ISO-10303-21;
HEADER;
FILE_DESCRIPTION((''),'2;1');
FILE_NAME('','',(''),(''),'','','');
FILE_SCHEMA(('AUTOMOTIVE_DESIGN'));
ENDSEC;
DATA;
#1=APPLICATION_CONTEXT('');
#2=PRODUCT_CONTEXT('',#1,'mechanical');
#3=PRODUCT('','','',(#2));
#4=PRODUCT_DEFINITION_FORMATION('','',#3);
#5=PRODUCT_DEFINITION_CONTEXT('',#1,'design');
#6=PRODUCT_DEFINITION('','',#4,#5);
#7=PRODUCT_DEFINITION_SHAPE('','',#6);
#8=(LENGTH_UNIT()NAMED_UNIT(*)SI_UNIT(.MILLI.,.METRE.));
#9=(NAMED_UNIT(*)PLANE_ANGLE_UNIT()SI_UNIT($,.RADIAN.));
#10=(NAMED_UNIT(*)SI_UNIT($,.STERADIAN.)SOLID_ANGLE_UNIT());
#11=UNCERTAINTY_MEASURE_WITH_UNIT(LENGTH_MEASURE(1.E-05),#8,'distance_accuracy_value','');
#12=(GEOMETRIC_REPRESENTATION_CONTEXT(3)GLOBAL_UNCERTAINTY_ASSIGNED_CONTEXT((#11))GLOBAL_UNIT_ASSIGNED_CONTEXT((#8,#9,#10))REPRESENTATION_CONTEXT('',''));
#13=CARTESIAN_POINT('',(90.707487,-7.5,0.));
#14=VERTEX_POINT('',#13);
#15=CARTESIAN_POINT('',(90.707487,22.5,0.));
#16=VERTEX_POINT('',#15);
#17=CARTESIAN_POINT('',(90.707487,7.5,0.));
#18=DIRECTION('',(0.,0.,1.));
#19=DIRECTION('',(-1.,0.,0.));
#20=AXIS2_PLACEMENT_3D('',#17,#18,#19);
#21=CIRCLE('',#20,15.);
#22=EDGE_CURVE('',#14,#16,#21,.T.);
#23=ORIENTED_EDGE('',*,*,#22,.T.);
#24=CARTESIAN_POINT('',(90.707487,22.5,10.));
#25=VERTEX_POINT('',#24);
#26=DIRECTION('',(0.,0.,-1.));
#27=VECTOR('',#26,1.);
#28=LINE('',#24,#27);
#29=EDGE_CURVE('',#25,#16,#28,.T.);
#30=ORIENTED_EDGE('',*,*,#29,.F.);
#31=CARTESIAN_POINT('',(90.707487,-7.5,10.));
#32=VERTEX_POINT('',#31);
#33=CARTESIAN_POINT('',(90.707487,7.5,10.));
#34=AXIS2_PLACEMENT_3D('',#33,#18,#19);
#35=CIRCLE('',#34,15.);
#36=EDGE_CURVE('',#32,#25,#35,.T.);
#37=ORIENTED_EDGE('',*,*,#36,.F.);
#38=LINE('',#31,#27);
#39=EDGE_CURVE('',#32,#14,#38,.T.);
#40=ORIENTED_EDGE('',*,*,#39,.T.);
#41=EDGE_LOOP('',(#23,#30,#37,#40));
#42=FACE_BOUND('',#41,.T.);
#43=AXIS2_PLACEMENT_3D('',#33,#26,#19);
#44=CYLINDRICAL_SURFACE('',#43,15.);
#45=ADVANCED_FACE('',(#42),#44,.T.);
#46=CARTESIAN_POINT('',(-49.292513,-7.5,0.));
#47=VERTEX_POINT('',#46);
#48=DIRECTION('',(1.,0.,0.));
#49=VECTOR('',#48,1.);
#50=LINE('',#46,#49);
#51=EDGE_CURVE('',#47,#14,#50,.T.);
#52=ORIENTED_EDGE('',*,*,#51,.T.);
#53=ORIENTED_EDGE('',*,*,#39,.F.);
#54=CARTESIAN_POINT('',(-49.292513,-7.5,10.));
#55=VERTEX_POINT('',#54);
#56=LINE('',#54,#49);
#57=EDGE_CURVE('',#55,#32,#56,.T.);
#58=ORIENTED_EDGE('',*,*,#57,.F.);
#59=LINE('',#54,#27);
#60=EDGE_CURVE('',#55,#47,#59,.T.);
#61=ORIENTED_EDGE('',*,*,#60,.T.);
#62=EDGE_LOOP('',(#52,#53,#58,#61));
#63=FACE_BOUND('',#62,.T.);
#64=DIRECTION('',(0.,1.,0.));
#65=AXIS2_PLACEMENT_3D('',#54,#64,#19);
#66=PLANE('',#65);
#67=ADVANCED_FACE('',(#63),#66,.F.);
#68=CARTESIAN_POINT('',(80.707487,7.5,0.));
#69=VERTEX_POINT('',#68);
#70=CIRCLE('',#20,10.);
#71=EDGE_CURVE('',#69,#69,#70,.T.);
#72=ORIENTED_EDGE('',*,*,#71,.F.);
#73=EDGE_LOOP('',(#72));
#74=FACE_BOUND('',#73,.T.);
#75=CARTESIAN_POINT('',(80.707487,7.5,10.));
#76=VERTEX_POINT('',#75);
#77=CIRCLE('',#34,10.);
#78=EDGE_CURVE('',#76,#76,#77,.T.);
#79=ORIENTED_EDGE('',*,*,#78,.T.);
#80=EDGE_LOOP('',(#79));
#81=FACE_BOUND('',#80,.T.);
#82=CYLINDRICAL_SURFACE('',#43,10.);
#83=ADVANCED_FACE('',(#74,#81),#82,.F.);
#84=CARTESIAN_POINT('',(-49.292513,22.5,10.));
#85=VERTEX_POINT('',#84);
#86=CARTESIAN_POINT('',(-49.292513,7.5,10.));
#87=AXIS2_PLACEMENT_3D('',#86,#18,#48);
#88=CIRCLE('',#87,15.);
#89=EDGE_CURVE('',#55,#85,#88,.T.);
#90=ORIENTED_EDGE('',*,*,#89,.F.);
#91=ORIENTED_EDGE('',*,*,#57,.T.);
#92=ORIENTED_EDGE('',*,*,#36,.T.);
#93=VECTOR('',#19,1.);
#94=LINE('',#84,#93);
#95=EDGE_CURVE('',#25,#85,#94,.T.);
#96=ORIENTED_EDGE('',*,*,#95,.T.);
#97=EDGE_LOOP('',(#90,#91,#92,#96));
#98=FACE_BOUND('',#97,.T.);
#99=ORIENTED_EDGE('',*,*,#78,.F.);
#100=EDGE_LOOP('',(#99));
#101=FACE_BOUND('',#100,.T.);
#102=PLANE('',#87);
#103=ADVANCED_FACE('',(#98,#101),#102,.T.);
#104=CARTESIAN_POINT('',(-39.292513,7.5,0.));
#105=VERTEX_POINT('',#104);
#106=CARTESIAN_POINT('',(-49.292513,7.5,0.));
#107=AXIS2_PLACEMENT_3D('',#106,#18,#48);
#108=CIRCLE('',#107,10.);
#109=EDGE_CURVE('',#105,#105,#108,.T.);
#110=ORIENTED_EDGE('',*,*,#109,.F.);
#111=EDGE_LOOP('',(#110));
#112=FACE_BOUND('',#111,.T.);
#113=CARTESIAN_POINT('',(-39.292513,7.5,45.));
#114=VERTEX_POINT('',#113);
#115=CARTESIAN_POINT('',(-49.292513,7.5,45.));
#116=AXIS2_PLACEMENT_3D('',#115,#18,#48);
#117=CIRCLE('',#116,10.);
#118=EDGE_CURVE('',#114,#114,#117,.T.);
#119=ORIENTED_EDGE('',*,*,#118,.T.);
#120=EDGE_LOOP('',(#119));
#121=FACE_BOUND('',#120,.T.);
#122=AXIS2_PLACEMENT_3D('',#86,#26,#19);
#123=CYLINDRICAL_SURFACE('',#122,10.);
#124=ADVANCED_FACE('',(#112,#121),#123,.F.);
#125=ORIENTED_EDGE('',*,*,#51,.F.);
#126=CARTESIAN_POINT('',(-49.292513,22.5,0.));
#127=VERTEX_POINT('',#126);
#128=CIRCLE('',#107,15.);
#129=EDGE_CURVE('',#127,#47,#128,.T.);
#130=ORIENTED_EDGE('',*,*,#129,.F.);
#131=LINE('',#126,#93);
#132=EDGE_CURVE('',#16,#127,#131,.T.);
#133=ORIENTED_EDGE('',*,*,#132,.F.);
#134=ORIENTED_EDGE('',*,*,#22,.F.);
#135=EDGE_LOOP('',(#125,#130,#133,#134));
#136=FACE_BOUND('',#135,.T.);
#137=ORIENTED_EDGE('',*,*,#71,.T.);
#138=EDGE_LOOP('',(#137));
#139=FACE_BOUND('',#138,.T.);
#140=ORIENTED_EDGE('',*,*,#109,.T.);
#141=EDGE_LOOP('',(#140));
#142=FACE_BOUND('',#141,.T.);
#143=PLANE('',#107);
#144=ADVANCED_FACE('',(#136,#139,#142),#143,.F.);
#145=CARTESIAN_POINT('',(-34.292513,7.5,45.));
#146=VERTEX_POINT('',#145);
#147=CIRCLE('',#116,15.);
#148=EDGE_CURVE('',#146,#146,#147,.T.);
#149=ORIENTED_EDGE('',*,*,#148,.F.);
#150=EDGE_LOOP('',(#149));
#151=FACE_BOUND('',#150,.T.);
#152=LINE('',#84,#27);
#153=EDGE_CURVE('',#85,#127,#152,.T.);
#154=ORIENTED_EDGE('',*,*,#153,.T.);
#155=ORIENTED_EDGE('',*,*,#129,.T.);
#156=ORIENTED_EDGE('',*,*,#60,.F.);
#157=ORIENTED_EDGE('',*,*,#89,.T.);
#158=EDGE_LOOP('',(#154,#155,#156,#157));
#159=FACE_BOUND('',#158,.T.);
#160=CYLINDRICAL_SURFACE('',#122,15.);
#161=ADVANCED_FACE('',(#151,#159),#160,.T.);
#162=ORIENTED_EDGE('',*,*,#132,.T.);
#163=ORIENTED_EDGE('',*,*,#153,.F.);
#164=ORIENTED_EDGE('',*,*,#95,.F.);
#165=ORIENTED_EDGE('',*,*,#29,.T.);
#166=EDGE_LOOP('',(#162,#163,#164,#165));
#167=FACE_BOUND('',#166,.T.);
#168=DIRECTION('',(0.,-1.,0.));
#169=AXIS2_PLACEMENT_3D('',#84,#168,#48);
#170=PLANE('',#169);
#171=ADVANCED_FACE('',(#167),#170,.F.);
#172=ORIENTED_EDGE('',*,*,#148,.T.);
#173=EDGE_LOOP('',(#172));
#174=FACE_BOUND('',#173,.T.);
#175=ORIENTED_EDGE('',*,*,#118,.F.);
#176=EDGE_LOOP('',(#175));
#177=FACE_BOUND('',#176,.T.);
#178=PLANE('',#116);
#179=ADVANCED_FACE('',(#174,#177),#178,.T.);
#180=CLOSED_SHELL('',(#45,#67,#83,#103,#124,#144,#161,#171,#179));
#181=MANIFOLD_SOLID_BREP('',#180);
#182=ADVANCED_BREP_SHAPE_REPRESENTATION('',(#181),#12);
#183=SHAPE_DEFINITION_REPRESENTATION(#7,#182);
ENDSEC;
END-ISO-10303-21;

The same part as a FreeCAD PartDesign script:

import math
import FreeCAD as App
import Part
import Sketcher

V = App.Vector
Q = App.Units.Quantity

doc = App.newDocument("Part")
params = doc.addObject("Spreadsheet::Sheet", "Params")
for row, (alias, value) in enumerate([
    ("sketch1_diameter", "20 mm"),
    ("sketch1_radius", "15 mm"),
    ("sketch1_width", "140 mm"),
    ("pad1_length", "10 mm"),
    ("sketch2_diameter", "30 mm"),
    ("sketch2_diameter2", "20 mm"),
    ("pad2_length", "35 mm"),
], start=1):
    params.set(f"A{row}", alias)
    params.set(f"B{row}", "=" + value)
    params.setAlias(f"B{row}", alias)

body = doc.addObject("PartDesign::Body", "Body")

sketch1 = body.newObject("Sketcher::SketchObject", "Sketch")
sketch1.AttachmentSupport = (doc.getObject("XY_Plane"), [""])
sketch1.MapMode = "FlatFace"
sketch1.addGeometry([
    Part.LineSegment(V(91, 22, 0), V(-49, 22, 0)),
    Part.ArcOfCircle(Part.Circle(V(-49, 8, 0), V(0, 0, 1), 15), math.radians(90), math.radians(270)),
    Part.LineSegment(V(-49, -8, 0), V(91, -8, 0)),
    Part.ArcOfCircle(Part.Circle(V(91, 8, 0), V(0, 0, 1), 15), math.radians(-90), math.radians(90)),
    Part.Circle(V(91, 8, 0), V(0, 0, 1), 10),
    Part.Circle(V(-49, 8, 0), V(0, 0, 1), 10),
], False)
sketch1.addConstraint([
    Sketcher.Constraint("Tangent", 0, 2, 1, 1),
    Sketcher.Constraint("Tangent", 1, 2, 2, 1),
    Sketcher.Constraint("Tangent", 2, 2, 3, 1),
    Sketcher.Constraint("Tangent", 3, 2, 0, 1),
    Sketcher.Constraint("Horizontal", 0),
    Sketcher.Constraint("Horizontal", 2),
    Sketcher.Constraint("Coincident", 4, 3, 3, 3),
    Sketcher.Constraint("Coincident", 5, 3, 1, 3),
    Sketcher.Constraint("Equal", 4, 5),
    Sketcher.Constraint("Diameter", 4, Q("20 mm")),
    Sketcher.Constraint("Radius", 1, Q("15 mm")),
    Sketcher.Constraint("DistanceX", 0, 2, 0, 1, Q("140 mm")),
    Sketcher.Constraint("DistanceY", -1, 1, 1, 3, Q("7.5 mm")),
    Sketcher.Constraint("DistanceX", 1, 3, -1, 1, Q("49.292513 mm")),
])
sketch1.setExpression("Constraints[9]", "Params.sketch1_diameter")
sketch1.setExpression("Constraints[10]", "Params.sketch1_radius")
sketch1.setExpression("Constraints[11]", "Params.sketch1_width")
pad1 = body.newObject("PartDesign::Pad", "Pad")
pad1.Profile = sketch1
pad1.setExpression("Length", "Params.pad1_length")

sketch2 = body.newObject("Sketcher::SketchObject", "Sketch001")
sketch2.AttachmentSupport = (doc.getObject("XY_Plane"), [""])
sketch2.MapMode = "FlatFace"
sketch2.AttachmentOffset = App.Placement(V(0, 0, 10), App.Rotation())
sketch2.addGeometry([
    Part.Circle(V(-49, 8, 0), V(0, 0, 1), 15),
    Part.Circle(V(-49, 8, 0), V(0, 0, 1), 10),
], False)
sketch2.addConstraint([
    Sketcher.Constraint("Coincident", 1, 3, 0, 3),
    Sketcher.Constraint("Diameter", 0, Q("30 mm")),
    Sketcher.Constraint("Diameter", 1, Q("20 mm")),
    Sketcher.Constraint("DistanceY", -1, 1, 0, 3, Q("7.5 mm")),
    Sketcher.Constraint("DistanceX", 0, 3, -1, 1, Q("49.292513 mm")),
])
sketch2.setExpression("Constraints[1]", "Params.sketch2_diameter")
sketch2.setExpression("Constraints[2]", "Params.sketch2_diameter2")
pad2 = body.newObject("PartDesign::Pad", "Pad001")
pad2.Profile = sketch2
pad2.setExpression("Length", "Params.pad2_length")

doc.recompute()
